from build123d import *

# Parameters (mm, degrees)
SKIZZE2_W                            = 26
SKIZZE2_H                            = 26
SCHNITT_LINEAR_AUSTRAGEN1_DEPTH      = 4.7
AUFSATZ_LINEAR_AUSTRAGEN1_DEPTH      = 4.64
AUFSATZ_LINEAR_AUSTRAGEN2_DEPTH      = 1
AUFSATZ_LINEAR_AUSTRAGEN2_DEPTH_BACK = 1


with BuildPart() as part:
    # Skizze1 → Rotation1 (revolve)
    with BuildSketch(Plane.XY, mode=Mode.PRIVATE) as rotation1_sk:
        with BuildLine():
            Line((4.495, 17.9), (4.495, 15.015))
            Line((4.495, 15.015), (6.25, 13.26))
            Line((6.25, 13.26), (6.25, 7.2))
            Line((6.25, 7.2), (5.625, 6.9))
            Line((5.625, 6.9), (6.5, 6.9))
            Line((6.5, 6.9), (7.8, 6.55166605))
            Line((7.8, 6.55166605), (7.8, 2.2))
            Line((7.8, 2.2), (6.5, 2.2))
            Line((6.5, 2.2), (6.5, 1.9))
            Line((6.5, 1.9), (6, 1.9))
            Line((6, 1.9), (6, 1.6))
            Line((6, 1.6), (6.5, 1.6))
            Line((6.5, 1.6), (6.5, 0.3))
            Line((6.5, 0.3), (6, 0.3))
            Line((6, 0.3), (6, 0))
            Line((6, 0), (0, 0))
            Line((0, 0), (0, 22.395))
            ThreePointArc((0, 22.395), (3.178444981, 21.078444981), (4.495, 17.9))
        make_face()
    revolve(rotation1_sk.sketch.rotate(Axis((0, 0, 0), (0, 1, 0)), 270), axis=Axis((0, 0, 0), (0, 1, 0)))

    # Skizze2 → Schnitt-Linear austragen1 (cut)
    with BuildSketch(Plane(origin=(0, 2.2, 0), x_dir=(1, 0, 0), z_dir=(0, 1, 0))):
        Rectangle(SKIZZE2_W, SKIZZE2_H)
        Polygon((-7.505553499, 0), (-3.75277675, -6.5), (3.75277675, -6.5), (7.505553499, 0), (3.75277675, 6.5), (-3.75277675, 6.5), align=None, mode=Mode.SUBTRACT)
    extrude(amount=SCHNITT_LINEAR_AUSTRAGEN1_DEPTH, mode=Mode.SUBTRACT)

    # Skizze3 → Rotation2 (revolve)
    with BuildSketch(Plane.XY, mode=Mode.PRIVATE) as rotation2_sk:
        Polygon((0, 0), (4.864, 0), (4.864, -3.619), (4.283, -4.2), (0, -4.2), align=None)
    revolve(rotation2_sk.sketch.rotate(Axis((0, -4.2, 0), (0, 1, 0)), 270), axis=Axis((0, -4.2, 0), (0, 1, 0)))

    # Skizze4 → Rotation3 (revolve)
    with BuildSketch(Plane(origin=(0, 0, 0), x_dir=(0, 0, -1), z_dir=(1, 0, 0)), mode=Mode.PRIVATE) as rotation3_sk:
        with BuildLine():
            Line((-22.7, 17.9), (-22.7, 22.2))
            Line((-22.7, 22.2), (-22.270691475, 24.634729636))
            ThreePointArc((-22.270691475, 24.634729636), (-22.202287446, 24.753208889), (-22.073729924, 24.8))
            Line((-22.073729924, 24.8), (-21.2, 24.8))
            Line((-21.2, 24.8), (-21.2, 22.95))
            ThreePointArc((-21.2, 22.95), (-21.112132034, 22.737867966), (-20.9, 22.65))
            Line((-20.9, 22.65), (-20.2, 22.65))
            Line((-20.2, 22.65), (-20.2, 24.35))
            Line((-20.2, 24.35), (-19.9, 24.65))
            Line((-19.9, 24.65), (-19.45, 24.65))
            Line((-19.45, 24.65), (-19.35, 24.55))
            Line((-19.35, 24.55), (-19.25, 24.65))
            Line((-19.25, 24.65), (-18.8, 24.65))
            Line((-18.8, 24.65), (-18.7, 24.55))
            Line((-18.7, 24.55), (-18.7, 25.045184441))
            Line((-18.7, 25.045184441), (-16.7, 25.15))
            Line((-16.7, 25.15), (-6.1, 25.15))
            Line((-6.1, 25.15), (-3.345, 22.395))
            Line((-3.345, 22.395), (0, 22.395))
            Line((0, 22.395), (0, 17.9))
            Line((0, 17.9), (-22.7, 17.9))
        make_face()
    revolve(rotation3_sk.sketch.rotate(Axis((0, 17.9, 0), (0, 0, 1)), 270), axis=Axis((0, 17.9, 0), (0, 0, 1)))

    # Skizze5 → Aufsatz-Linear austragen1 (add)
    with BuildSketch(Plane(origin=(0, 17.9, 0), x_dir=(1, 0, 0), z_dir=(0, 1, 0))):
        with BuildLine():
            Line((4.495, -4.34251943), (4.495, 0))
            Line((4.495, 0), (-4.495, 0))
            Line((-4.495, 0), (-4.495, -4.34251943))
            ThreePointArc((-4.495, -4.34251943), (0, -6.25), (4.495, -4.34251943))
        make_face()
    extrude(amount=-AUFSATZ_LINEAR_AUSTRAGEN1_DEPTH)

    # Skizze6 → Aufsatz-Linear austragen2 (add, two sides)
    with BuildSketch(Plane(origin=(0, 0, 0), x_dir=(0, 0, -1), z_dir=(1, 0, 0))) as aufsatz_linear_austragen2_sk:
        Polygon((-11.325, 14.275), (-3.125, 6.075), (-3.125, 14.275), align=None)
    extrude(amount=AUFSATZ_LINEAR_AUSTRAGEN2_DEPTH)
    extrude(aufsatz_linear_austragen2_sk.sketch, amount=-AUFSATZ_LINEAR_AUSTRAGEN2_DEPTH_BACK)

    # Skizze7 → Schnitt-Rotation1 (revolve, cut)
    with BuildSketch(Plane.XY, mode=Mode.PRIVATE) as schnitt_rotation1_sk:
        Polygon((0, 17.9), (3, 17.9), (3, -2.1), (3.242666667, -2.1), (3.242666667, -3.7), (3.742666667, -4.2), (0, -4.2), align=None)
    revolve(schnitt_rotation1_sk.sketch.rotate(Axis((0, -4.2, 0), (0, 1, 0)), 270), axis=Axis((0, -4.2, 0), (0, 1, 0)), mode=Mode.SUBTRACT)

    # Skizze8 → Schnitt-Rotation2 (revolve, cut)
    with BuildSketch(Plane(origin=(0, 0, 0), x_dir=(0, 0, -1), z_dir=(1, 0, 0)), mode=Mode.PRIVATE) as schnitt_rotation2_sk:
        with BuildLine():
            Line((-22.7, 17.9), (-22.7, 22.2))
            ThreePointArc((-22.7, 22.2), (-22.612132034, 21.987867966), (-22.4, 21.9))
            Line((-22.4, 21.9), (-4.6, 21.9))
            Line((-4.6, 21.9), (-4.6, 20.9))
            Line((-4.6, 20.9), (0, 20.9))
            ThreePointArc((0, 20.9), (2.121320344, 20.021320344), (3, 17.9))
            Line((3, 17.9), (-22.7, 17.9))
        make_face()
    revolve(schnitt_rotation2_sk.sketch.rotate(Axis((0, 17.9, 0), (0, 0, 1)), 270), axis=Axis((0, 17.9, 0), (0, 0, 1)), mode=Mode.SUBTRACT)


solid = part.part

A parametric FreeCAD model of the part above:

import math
import FreeCAD as App
import Part
import Sketcher

V = App.Vector
Q = App.Units.Quantity

doc = App.newDocument("Part")
body = doc.addObject("PartDesign::Body", "Body")

# Sketch on XY plane
sketch1 = body.newObject("Sketcher::SketchObject", "Sketch")
sketch1.AttachmentSupport = (doc.getObject("XY_Plane"), [""])
sketch1.MapMode = "FlatFace"
sketch1.addGeometry([
    Part.LineSegment(V(4.5, 15.02, 0), V(4.5, 17.9, 0)),  # 0
    Part.ArcOfCircle(Part.Circle(V(0, 17.9, 0), V(0, 0, 1), 4.5), math.radians(0), math.radians(90)),  # 1
    Part.LineSegment(V(0, 22.39, 0), V(0, 0, 0)),  # 2
    Part.LineSegment(V(0, 0, 0), V(6, 0, 0)),  # 3
    Part.LineSegment(V(6, 0, 0), V(6, 0.3, 0)),  # 4
    Part.LineSegment(V(6, 0.3, 0), V(6.5, 0.3, 0)),  # 5
    Part.LineSegment(V(6.5, 0.3, 0), V(6.5, 1.6, 0)),  # 6
    Part.LineSegment(V(6.5, 1.6, 0), V(6, 1.6, 0)),  # 7
    Part.LineSegment(V(6, 1.6, 0), V(6, 1.9, 0)),  # 8
    Part.LineSegment(V(6, 1.9, 0), V(6.5, 1.9, 0)),  # 9
    Part.LineSegment(V(6.5, 1.9, 0), V(6.5, 2.2, 0)),  # 10
    Part.LineSegment(V(6.5, 2.2, 0), V(7.8, 2.2, 0)),  # 11
    Part.LineSegment(V(7.8, 2.2, 0), V(7.8, 6.55, 0)),  # 12
    Part.LineSegment(V(7.8, 6.55, 0), V(6.5, 6.9, 0)),  # 13
    Part.LineSegment(V(6.5, 6.9, 0), V(5.62, 6.9, 0)),  # 14
    Part.LineSegment(V(5.62, 6.9, 0), V(6.25, 7.2, 0)),  # 15
    Part.LineSegment(V(6.25, 7.2, 0), V(6.25, 13.26, 0)),  # 16
    Part.LineSegment(V(6.25, 13.26, 0), V(4.5, 15.02, 0)),  # 17
], False)
sketch1.addConstraint([
    Sketcher.Constraint("Tangent", 0, 2, 1, 1),
    Sketcher.Constraint("Coincident", 1, 2, 2, 1),
    Sketcher.Constraint("Coincident", 2, 2, 3, 1),
    Sketcher.Constraint("Coincident", 3, 2, 4, 1),
    Sketcher.Constraint("Coincident", 4, 2, 5, 1),
    Sketcher.Constraint("Coincident", 5, 2, 6, 1),
    Sketcher.Constraint("Coincident", 6, 2, 7, 1),
    Sketcher.Constraint("Coincident", 7, 2, 8, 1),
    Sketcher.Constraint("Coincident", 8, 2, 9, 1),
    Sketcher.Constraint("Coincident", 9, 2, 10, 1),
    Sketcher.Constraint("Coincident", 10, 2, 11, 1),
    Sketcher.Constraint("Coincident", 11, 2, 12, 1),
    Sketcher.Constraint("Coincident", 12, 2, 13, 1),
    Sketcher.Constraint("Coincident", 13, 2, 14, 1),
    Sketcher.Constraint("Coincident", 14, 2, 15, 1),
    Sketcher.Constraint("Coincident", 15, 2, 16, 1),
    Sketcher.Constraint("Coincident", 16, 2, 17, 1),
    Sketcher.Constraint("Coincident", 17, 2, 0, 1),
    Sketcher.Constraint("Vertical", 0),
    Sketcher.Constraint("Vertical", 2),
    Sketcher.Constraint("Horizontal", 3),
    Sketcher.Constraint("Vertical", 4),
    Sketcher.Constraint("Horizontal", 5),
    Sketcher.Constraint("Vertical", 6),
    Sketcher.Constraint("Horizontal", 7),
    Sketcher.Constraint("Vertical", 8),
    Sketcher.Constraint("Horizontal", 9),
    Sketcher.Constraint("Vertical", 10),
    Sketcher.Constraint("Horizontal", 11),
    Sketcher.Constraint("Vertical", 12),
    Sketcher.Constraint("Horizontal", 14),
    Sketcher.Constraint("Vertical", 16),
    Sketcher.Constraint("Coincident", 2, 2, -1, 1),
    Sketcher.Constraint("PointOnObject", 1, 3, -2),
    Sketcher.Constraint("Vertical", 4, 2, 7, 2),
    Sketcher.Constraint("Vertical", 6, 2, 9, 2),
    Sketcher.Constraint("Vertical", 10, 2, 13, 2),
    Sketcher.Constraint("Equal", 11, 6),
    Sketcher.Constraint("Equal", 4, 8),
    Sketcher.Constraint("Equal", 8, 10),
    Sketcher.Constraint("DistanceX", 3, 1, 3, 2, 6.0),
    Sketcher.Constraint("Angle", 13, Q("165 deg")),
    Sketcher.Constraint("Angle", 17, Q("135 deg")),
    Sketcher.Constraint("DistanceX", 5, 1, 5, 2, 0.5),
    Sketcher.Constraint("DistanceX", 11, 1, 11, 2, 1.3),
    Sketcher.Constraint("DistanceY", 4, 1, 4, 2, 0.3),
    Sketcher.Constraint("Radius", 1, 4.495),
    Sketcher.Constraint("DistanceY", 9, 2, 13, 2, 5.0),
    Sketcher.Constraint("DistanceY", 10, 2, 15, 2, 5.0),
    Sketcher.Constraint("DistanceY", 16, 1, 16, 2, 6.06),
    Sketcher.Constraint("DistanceY", -1, 1, 1, 3, 17.9),
    Sketcher.Constraint("DistanceX", 14, 2, 14, 1, 0.875),
    Sketcher.Constraint("DistanceY", 0, 1, 0, 2, 2.885),
])
revolution = body.newObject("PartDesign::Revolution", "Revolution")
revolution.Profile = sketch1
revolution.ReferenceAxis = (sketch1, ["V_Axis"])
revolution.Angle = 360

# Sketch on XZ plane
sketch2 = body.newObject("Sketcher::SketchObject", "Sketch001")
sketch2.AttachmentSupport = (doc.getObject("XZ_Plane"), [""])
sketch2.MapMode = "FlatFace"
sketch2.AttachmentOffset = App.Placement(V(0, 0, -2.2), App.Rotation())
sketch2.addGeometry([
    Part.LineSegment(V(-13, -13, 0), V(-13, 13, 0)),  # 0
    Part.LineSegment(V(-13, 13, 0), V(13, 13, 0)),  # 1
    Part.LineSegment(V(13, 13, 0), V(13, -13, 0)),  # 2
    Part.LineSegment(V(13, -13, 0), V(-13, -13, 0)),  # 3
    Part.LineSegment(V(-4, 6, 0), V(-8, 0, 0)),  # 4
    Part.LineSegment(V(-8, 0, 0), V(-4, -6, 0)),  # 5
    Part.LineSegment(V(-4, -6, 0), V(4, -6, 0)),  # 6
    Part.LineSegment(V(4, -6, 0), V(8, 0, 0)),  # 7
    Part.LineSegment(V(8, 0, 0), V(4, 6, 0)),  # 8
    Part.LineSegment(V(4, 6, 0), V(-4, 6, 0)),  # 9
], False)
sketch2.addConstraint([
    Sketcher.Constraint("Coincident", 0, 2, 1, 1),
    Sketcher.Constraint("Coincident", 1, 2, 2, 1),
    Sketcher.Constraint("Coincident", 2, 2, 3, 1),
    Sketcher.Constraint("Coincident", 3, 2, 0, 1),
    Sketcher.Constraint("Coincident", 4, 2, 5, 1),
    Sketcher.Constraint("Coincident", 5, 2, 6, 1),
    Sketcher.Constraint("Coincident", 6, 2, 7, 1),
    Sketcher.Constraint("Coincident", 7, 2, 8, 1),
    Sketcher.Constraint("Coincident", 8, 2, 9, 1),
    Sketcher.Constraint("Coincident", 9, 2, 4, 1),
    Sketcher.Constraint("Vertical", 0),
    Sketcher.Constraint("Horizontal", 1),
    Sketcher.Constraint("Vertical", 2),
    Sketcher.Constraint("Horizontal", 3),
    Sketcher.Constraint("Horizontal", 6),
    Sketcher.Constraint("Horizontal", 9),
    Sketcher.Constraint("Symmetric", 0, 2, 2, 2, -1, 1),
    Sketcher.Constraint("Symmetric", 4, 2, 7, 2, -1, 1),
    Sketcher.Constraint("Symmetric", 5, 2, 8, 2, -1, 1),
    Sketcher.Constraint("PointOnObject", 4, 2, -1),
    Sketcher.Constraint("Parallel", 4, 7),
    Sketcher.Constraint("Vertical", 6, 2, 8, 2),
    Sketcher.Constraint("Equal", 3, 0),
    Sketcher.Constraint("DistanceX", 1, 1, 1, 2, 26.0),
    Sketcher.Constraint("Angle", 4, Q("-120 deg")),
    Sketcher.Constraint("DistanceY", 6, 2, 8, 2, 13.0),
    Sketcher.Constraint("DistanceX", 6, 1, 6, 2, 7.505554),
])
pocket1 = body.newObject("PartDesign::Pocket", "Pocket")
pocket1.Profile = sketch2
pocket1.Length = 4.7

# Sketch on XY plane
sketch3 = body.newObject("Sketcher::SketchObject", "Sketch002")
sketch3.AttachmentSupport = (doc.getObject("XY_Plane"), [""])
sketch3.MapMode = "FlatFace"
sketch3.addGeometry([
    Part.LineSegment(V(4.9, 0, 0), V(0, 0, 0)),  # 0
    Part.LineSegment(V(0, 0, 0), V(0, -4.2, 0)),  # 1
    Part.LineSegment(V(0, -4.2, 0), V(4.3, -4.2, 0)),  # 2
    Part.LineSegment(V(4.3, -4.2, 0), V(4.9, -3.6, 0)),  # 3
    Part.LineSegment(V(4.9, -3.6, 0), V(4.9, 0, 0)),  # 4
], False)
sketch3.addConstraint([
    Sketcher.Constraint("Coincident", 0, 2, 1, 1),
    Sketcher.Constraint("Coincident", 1, 2, 2, 1),
    Sketcher.Constraint("Coincident", 2, 2, 3, 1),
    Sketcher.Constraint("Coincident", 3, 2, 4, 1),
    Sketcher.Constraint("Coincident", 4, 2, 0, 1),
    Sketcher.Constraint("Horizontal", 0),
    Sketcher.Constraint("Vertical", 1),
    Sketcher.Constraint("Horizontal", 2),
    Sketcher.Constraint("Vertical", 4),
    Sketcher.Constraint("Coincident", 0, 2, -1, 1),
    Sketcher.Constraint("Angle", 3, Q("45 deg")),
    Sketcher.Constraint("DistanceY", 1, 2, 1, 1, 4.2),
    Sketcher.Constraint("DistanceX", 0, 2, 0, 1, 4.864),
    Sketcher.Constraint("DistanceX", 2, 1, 2, 2, 4.283),
])
revolution2 = body.newObject("PartDesign::Revolution", "Revolution001")
revolution2.Profile = sketch3
revolution2.ReferenceAxis = (sketch3, ["V_Axis"])
revolution2.Angle = 360

# Sketch on YZ plane
sketch4 = body.newObject("Sketcher::SketchObject", "Sketch003")
sketch4.AttachmentSupport = (doc.getObject("YZ_Plane"), [""])
sketch4.MapMode = "FlatFace"
sketch4.addGeometry([
    Part.LineSegment(V(22.2, 22.7, 0), V(17.9, 22.7, 0)),  # 0
    Part.LineSegment(V(17.9, 22.7, 0), V(17.9, 0, 0)),  # 1
    Part.LineSegment(V(17.9, 0, 0), V(22.39, 0, 0)),  # 2
    Part.LineSegment(V(22.39, 0, 0), V(22.39, 3.35, 0)),  # 3
    Part.LineSegment(V(22.39, 3.35, 0), V(25.15, 6.1, 0)),  # 4
    Part.LineSegment(V(25.15, 6.1, 0), V(25.15, 16.7, 0)),  # 5
    Part.LineSegment(V(25.15, 16.7, 0), V(25.05, 18.7, 0)),  # 6
    Part.LineSegment(V(25.05, 18.7, 0), V(24.55, 18.7, 0)),  # 7
    Part.LineSegment(V(24.55, 18.7, 0), V(24.65, 18.8, 0)),  # 8
    Part.LineSegment(V(24.65, 18.8, 0), V(24.65, 19.25, 0)),  # 9
    Part.LineSegment(V(24.65, 19.25, 0), V(24.55, 19.35, 0)),  # 10
    Part.LineSegment(V(24.55, 19.35, 0), V(24.65, 19.45, 0)),  # 11
    Part.LineSegment(V(24.65, 19.45, 0), V(24.65, 19.9, 0)),  # 12
    Part.LineSegment(V(24.65, 19.9, 0), V(24.35, 20.2, 0)),  # 13
    Part.LineSegment(V(24.35, 20.2, 0), V(22.65, 20.2, 0)),  # 14
    Part.LineSegment(V(22.65, 20.2, 0), V(22.65, 20.9, 0)),  # 15
    Part.ArcOfCircle(Part.Circle(V(22.95, 20.9, 0), V(0, 0, 1), 0.3), math.radians(90), math.radians(180)),  # 16
    Part.LineSegment(V(22.95, 21.2, 0), V(24.8, 21.2, 0)),  # 17
    Part.LineSegment(V(24.8, 21.2, 0), V(24.8, 22.07, 0)),  # 18
    Part.ArcOfCircle(Part.Circle(V(24.6, 22.07, 0), V(0, 0, 1), 0.2), math.radians(0), math.radians(80)),  # 19
    Part.LineSegment(V(24.63, 22.27, 0), V(22.2, 22.7, 0)),  # 20
], False)
sketch4.addGeometry(Part.LineSegment(V(17.9, 0, 0), V(17.9, 22.7, 0)), True)  # axis
sketch4.addConstraint([
    Sketcher.Constraint("Coincident", 0, 2, 1, 1),
    Sketcher.Constraint("Coincident", 1, 2, 2, 1),
    Sketcher.Constraint("Coincident", 2, 2, 3, 1),
    Sketcher.Constraint("Coincident", 3, 2, 4, 1),
    Sketcher.Constraint("Coincident", 4, 2, 5, 1),
    Sketcher.Constraint("Coincident", 5, 2, 6, 1),
    Sketcher.Constraint("Coincident", 6, 2, 7, 1),
    Sketcher.Constraint("Coincident", 7, 2, 8, 1),
    Sketcher.Constraint("Coincident", 8, 2, 9, 1),
    Sketcher.Constraint("Coincident", 9, 2, 10, 1),
    Sketcher.Constraint("Coincident", 10, 2, 11, 1),
    Sketcher.Constraint("Coincident", 11, 2, 12, 1),
    Sketcher.Constraint("Coincident", 12, 2, 13, 1),
    Sketcher.Constraint("Coincident", 13, 2, 14, 1),
    Sketcher.Constraint("Coincident", 14, 2, 15, 1),
    Sketcher.Constraint("Tangent", 15, 2, 16, 2),
    Sketcher.Constraint("Tangent", 16, 1, 17, 1),
    Sketcher.Constraint("Coincident", 17, 2, 18, 1),
    Sketcher.Constraint("Tangent", 18, 2, 19, 1),
    Sketcher.Constraint("Tangent", 19, 2, 20, 1),
    Sketcher.Constraint("Coincident", 20, 2, 0, 1),
    Sketcher.Constraint("Horizontal", 0),
    Sketcher.Constraint("Vertical", 1),
    Sketcher.Constraint("Horizontal", 2),
    Sketcher.Constraint("Vertical", 3),
    Sketcher.Constraint("Vertical", 5),
    Sketcher.Constraint("Horizontal", 7),
    Sketcher.Constraint("Vertical", 9),
    Sketcher.Constraint("Vertical", 12),
    Sketcher.Constraint("Horizontal", 14),
    Sketcher.Constraint("Vertical", 15),
    Sketcher.Constraint("Horizontal", 17),
    Sketcher.Constraint("Vertical", 18),
    Sketcher.Constraint("Vertical", 21),
    Sketcher.Constraint("Coincident", 21, 1, 1, 2),
    Sketcher.Constraint("PointOnObject", 1, 2, -1),
    Sketcher.Constraint("Parallel", 4, 8),
    Sketcher.Constraint("Perpendicular", 8, 10),
    Sketcher.Constraint("Perpendicular", 10, 11),
    Sketcher.Constraint("Perpendicular", 11, 13),
    Sketcher.Constraint("Horizontal", 20, 2, 21, 2),
    Sketcher.Constraint("Vertical", 7, 2, 10, 2),
    Sketcher.Constraint("Vertical", 9, 2, 11, 2),
    Sketcher.Constraint("Equal", 9, 12),
    Sketcher.Constraint("Equal", 8, 10),
    Sketcher.Constraint("Radius", 16, 0.3),
    Sketcher.Constraint("Radius", 19, 0.2),
    Sketcher.Constraint("Angle", 6, Q("93 deg")),
    Sketcher.Constraint("Angle", 20, Q("170 deg")),
    Sketcher.Constraint("DistanceX", 0, 2, 0, 1, 4.3),
    Sketcher.Constraint("DistanceX", 14, 2, 14, 1, 1.7),
    Sketcher.Constraint("DistanceY", 1, 2, 1, 1, 22.7),
    Sketcher.Constraint("DistanceY", 5, 1, 5, 2, 10.6),
    Sketcher.Constraint("DistanceY", 15, 1, 15, 2, 0.7),
    Sketcher.Constraint("DistanceY", 5, 2, 0, 2, 6.0),
    Sketcher.Constraint("DistanceY", 5, 2, 6, 2, 2.0),
    Sketcher.Constraint("DistanceX", 14, 2, 12, 2, 2.0),
    Sketcher.Constraint("DistanceX", 17, 1, 17, 2, 1.85),
    Sketcher.Constraint("DistanceY", 9, 1, 9, 2, 0.45),
    Sketcher.Constraint("DistanceY", -1, 1, 16, 3, 20.9),
    Sketcher.Constraint("DistanceX", -1, 1, 19, 3, 24.6),
    Sketcher.Constraint("DistanceX", -1, 1, 0, 2, 17.9),
    Sketcher.Constraint("DistanceX", 16, 3, 4, 2, 2.2),
    Sketcher.Constraint("DistanceX", 2, 1, 2, 2, 4.495),
])
revolution3 = body.newObject("PartDesign::Revolution", "Revolution002")
revolution3.Profile = sketch4
revolution3.ReferenceAxis = (sketch4, ["Axis0"])
revolution3.Angle = 360

# Sketch on XZ plane
sketch5 = body.newObject("Sketcher::SketchObject", "Sketch004")
sketch5.AttachmentSupport = (doc.getObject("XZ_Plane"), [""])
sketch5.MapMode = "FlatFace"
sketch5.AttachmentOffset = App.Placement(V(0, 0, -17.9), App.Rotation())
sketch5.addGeometry([
    Part.LineSegment(V(4.5, 4.3, 0), V(4.5, 0, 0)),
    Part.LineSegment(V(4.5, 0, 0), V(-4.5, 0, 0)),
    Part.LineSegment(V(-4.5, 0, 0), V(-4.5, 4.3, 0)),
    Part.ArcOfCircle(Part.Circle(V(0, 0, 0), V(0, 0, 1), 6.2), math.radians(44), math.radians(136)),
], False)
sketch5.addConstraint([
    Sketcher.Constraint("Coincident", 0, 2, 1, 1),
    Sketcher.Constraint("Coincident", 1, 2, 2, 1),
    Sketcher.Constraint("Coincident", 2, 2, 3, 2),
    Sketcher.Constraint("Coincident", 3, 1, 0, 1),
    Sketcher.Constraint("Vertical", 0),
    Sketcher.Constraint("Horizontal", 1),
    Sketcher.Constraint("Vertical", 2),
    Sketcher.Constraint("Coincident", 3, 3, -1, 1),
    Sketcher.Constraint("Symmetric", 0, 2, 1, 2, -1, 1),
    Sketcher.Constraint("Radius", 3, 6.25),
    Sketcher.Constraint("DistanceX", 1, 2, 1, 1, 8.99),
])
pad1 = body.newObject("PartDesign::Pad", "Pad")
pad1.Profile = sketch5
pad1.Length = 4.64

# Sketch on YZ plane
sketch6 = body.newObject("Sketcher::SketchObject", "Sketch005")
sketch6.AttachmentSupport = (doc.getObject("YZ_Plane"), [""])
sketch6.MapMode = "FlatFace"
sketch6.addGeometry([
    Part.LineSegment(V(14, 11, 0), V(6, 3, 0)),
    Part.LineSegment(V(6, 3, 0), V(14, 3, 0)),
    Part.LineSegment(V(14, 3, 0), V(14, 11, 0)),
], False)
sketch6.addConstraint([
    Sketcher.Constraint("Coincident", 0, 2, 1, 1),
    Sketcher.Constraint("Coincident", 1, 2, 2, 1),
    Sketcher.Constraint("Coincident", 2, 2, 0, 1),
    Sketcher.Constraint("Horizontal", 1),
    Sketcher.Constraint("Vertical", 2),
    Sketcher.Constraint("Equal", 1, 2),
    Sketcher.Constraint("DistanceX", 1, 1, 1, 2, 8.2),
    Sketcher.Constraint("DistanceX", -1, 1, 0, 2, 6.075),
    Sketcher.Constraint("DistanceY", -1, 1, 0, 2, 3.125),
])
pad2 = body.newObject("PartDesign::Pad", "Pad001")
pad2.Profile = sketch6
pad2.Type = "TwoLengths"
pad2.Length = 1
pad2.Length2 = 1

# Sketch on XY plane
sketch7 = body.newObject("Sketcher::SketchObject", "Sketch006")
sketch7.AttachmentSupport = (doc.getObject("XY_Plane"), [""])
sketch7.MapMode = "FlatFace"
sketch7.addGeometry([
    Part.LineSegment(V(3, 17.9, 0), V(0, 17.9, 0)),  # 0
    Part.LineSegment(V(0, 17.9, 0), V(0, -4.2, 0)),  # 1
    Part.LineSegment(V(0, -4.2, 0), V(3.74, -4.2, 0)),  # 2
    Part.LineSegment(V(3.74, -4.2, 0), V(3.24, -3.7, 0)),  # 3
    Part.LineSegment(V(3.24, -3.7, 0), V(3.24, -2.1, 0)),  # 4
    Part.LineSegment(V(3.24, -2.1, 0), V(3, -2.1, 0)),  # 5
    Part.LineSegment(V(3, -2.1, 0), V(3, 17.9, 0)),  # 6
], False)
sketch7.addConstraint([
    Sketcher.Constraint("Coincident", 0, 2, 1, 1),
    Sketcher.Constraint("Coincident", 1, 2, 2, 1),
    Sketcher.Constraint("Coincident", 2, 2, 3, 1),
    Sketcher.Constraint("Coincident", 3, 2, 4, 1),
    Sketcher.Constraint("Coincident", 4, 2, 5, 1),
    Sketcher.Constraint("Coincident", 5, 2, 6, 1),
    Sketcher.Constraint("Coincident", 6, 2, 0, 1),
    Sketcher.Constraint("Horizontal", 0),
    Sketcher.Constraint("Vertical", 1),
    Sketcher.Constraint("Horizontal", 2),
    Sketcher.Constraint("Vertical", 4),
    Sketcher.Constraint("Horizontal", 5),
    Sketcher.Constraint("Vertical", 6),
    Sketcher.Constraint("PointOnObject", 0, 2, -2),
    Sketcher.Constraint("DistanceX", 0, 2, 0, 1, 3.0),
    Sketcher.Constraint("DistanceY", 6, 1, 6, 2, 20.0),
    Sketcher.Constraint("Angle", 3, Q("135 deg")),
    Sketcher.Constraint("DistanceY", 1, 2, 1, 1, 22.1),
    Sketcher.Constraint("DistanceY", 4, 1, 4, 2, 1.6),
    Sketcher.Constraint("DistanceY", -1, 1, 0, 2, 17.9),
    Sketcher.Constraint("DistanceX", 2, 1, 2, 2, 3.742667),
])
groove = body.newObject("PartDesign::Groove", "Groove")
groove.Profile = sketch7
groove.ReferenceAxis = (sketch7, ["V_Axis"])
groove.Angle = 360

# Sketch on YZ plane
sketch8 = body.newObject("Sketcher::SketchObject", "Sketch007")
sketch8.AttachmentSupport = (doc.getObject("YZ_Plane"), [""])
sketch8.MapMode = "FlatFace"
sketch8.addGeometry([
    Part.LineSegment(V(22.2, 22.7, 0), V(17.9, 22.7, 0)),  # 0
    Part.LineSegment(V(17.9, 22.7, 0), V(17.9, -3, 0)),  # 1
    Part.ArcOfCircle(Part.Circle(V(17.9, 0, 0), V(0, 0, 1), 3), math.radians(-90), math.radians(0)),  # 2
    Part.LineSegment(V(20.9, 0, 0), V(20.9, 4.6, 0)),  # 3
    Part.LineSegment(V(20.9, 4.6, 0), V(21.9, 4.6, 0)),  # 4
    Part.LineSegment(V(21.9, 4.6, 0), V(21.9, 22.4, 0)),  # 5
    Part.ArcOfCircle(Part.Circle(V(22.2, 22.4, 0), V(0, 0, 1), 0.3), math.radians(90), math.radians(180)),  # 6
], False)
sketch8.addGeometry(Part.LineSegment(V(17.9, -3, 0), V(17.9, 22.7, 0)), True)  # axis
sketch8.addConstraint([
    Sketcher.Constraint("Coincident", 0, 2, 1, 1),
    Sketcher.Constraint("Coincident", 1, 2, 2, 1),
    Sketcher.Constraint("Tangent", 2, 2, 3, 1),
    Sketcher.Constraint("Coincident", 3, 2, 4, 1),
    Sketcher.Constraint("Coincident", 4, 2, 5, 1),
    Sketcher.Constraint("Tangent", 5, 2, 6, 2),
    Sketcher.Constraint("Tangent", 6, 1, 0, 1),
    Sketcher.Constraint("Horizontal", 0),
    Sketcher.Constraint("Vertical", 1),
    Sketcher.Constraint("Vertical", 3),
    Sketcher.Constraint("Horizontal", 4),
    Sketcher.Constraint("Vertical", 5),
    Sketcher.Constraint("Vertical", 7),
    Sketcher.Constraint("Coincident", 7, 1, 1, 2),
    Sketcher.Constraint("PointOnObject", 2, 3, -1),
    Sketcher.Constraint("Horizontal", 6, 1, 7, 2),
    Sketcher.Constraint("Vertical", 2, 3, 0, 2),
    Sketcher.Constraint("Radius", 2, 3.0),
    Sketcher.Constraint("Radius", 6, 0.3),
    Sketcher.Constraint("DistanceX", 4, 1, 4, 2, 1.0),
    Sketcher.Constraint("DistanceY", 1, 2, 1, 1, 25.7),
    Sketcher.Constraint("DistanceY", 3, 1, 3, 2, 4.6),
    Sketcher.Constraint("DistanceX", -1, 1, 2, 3, 17.9),
])
groove2 = body.newObject("PartDesign::Groove", "Groove001")
groove2.Profile = sketch8
groove2.ReferenceAxis = (sketch8, ["Axis0"])
groove2.Angle = 360

doc.recompute()
